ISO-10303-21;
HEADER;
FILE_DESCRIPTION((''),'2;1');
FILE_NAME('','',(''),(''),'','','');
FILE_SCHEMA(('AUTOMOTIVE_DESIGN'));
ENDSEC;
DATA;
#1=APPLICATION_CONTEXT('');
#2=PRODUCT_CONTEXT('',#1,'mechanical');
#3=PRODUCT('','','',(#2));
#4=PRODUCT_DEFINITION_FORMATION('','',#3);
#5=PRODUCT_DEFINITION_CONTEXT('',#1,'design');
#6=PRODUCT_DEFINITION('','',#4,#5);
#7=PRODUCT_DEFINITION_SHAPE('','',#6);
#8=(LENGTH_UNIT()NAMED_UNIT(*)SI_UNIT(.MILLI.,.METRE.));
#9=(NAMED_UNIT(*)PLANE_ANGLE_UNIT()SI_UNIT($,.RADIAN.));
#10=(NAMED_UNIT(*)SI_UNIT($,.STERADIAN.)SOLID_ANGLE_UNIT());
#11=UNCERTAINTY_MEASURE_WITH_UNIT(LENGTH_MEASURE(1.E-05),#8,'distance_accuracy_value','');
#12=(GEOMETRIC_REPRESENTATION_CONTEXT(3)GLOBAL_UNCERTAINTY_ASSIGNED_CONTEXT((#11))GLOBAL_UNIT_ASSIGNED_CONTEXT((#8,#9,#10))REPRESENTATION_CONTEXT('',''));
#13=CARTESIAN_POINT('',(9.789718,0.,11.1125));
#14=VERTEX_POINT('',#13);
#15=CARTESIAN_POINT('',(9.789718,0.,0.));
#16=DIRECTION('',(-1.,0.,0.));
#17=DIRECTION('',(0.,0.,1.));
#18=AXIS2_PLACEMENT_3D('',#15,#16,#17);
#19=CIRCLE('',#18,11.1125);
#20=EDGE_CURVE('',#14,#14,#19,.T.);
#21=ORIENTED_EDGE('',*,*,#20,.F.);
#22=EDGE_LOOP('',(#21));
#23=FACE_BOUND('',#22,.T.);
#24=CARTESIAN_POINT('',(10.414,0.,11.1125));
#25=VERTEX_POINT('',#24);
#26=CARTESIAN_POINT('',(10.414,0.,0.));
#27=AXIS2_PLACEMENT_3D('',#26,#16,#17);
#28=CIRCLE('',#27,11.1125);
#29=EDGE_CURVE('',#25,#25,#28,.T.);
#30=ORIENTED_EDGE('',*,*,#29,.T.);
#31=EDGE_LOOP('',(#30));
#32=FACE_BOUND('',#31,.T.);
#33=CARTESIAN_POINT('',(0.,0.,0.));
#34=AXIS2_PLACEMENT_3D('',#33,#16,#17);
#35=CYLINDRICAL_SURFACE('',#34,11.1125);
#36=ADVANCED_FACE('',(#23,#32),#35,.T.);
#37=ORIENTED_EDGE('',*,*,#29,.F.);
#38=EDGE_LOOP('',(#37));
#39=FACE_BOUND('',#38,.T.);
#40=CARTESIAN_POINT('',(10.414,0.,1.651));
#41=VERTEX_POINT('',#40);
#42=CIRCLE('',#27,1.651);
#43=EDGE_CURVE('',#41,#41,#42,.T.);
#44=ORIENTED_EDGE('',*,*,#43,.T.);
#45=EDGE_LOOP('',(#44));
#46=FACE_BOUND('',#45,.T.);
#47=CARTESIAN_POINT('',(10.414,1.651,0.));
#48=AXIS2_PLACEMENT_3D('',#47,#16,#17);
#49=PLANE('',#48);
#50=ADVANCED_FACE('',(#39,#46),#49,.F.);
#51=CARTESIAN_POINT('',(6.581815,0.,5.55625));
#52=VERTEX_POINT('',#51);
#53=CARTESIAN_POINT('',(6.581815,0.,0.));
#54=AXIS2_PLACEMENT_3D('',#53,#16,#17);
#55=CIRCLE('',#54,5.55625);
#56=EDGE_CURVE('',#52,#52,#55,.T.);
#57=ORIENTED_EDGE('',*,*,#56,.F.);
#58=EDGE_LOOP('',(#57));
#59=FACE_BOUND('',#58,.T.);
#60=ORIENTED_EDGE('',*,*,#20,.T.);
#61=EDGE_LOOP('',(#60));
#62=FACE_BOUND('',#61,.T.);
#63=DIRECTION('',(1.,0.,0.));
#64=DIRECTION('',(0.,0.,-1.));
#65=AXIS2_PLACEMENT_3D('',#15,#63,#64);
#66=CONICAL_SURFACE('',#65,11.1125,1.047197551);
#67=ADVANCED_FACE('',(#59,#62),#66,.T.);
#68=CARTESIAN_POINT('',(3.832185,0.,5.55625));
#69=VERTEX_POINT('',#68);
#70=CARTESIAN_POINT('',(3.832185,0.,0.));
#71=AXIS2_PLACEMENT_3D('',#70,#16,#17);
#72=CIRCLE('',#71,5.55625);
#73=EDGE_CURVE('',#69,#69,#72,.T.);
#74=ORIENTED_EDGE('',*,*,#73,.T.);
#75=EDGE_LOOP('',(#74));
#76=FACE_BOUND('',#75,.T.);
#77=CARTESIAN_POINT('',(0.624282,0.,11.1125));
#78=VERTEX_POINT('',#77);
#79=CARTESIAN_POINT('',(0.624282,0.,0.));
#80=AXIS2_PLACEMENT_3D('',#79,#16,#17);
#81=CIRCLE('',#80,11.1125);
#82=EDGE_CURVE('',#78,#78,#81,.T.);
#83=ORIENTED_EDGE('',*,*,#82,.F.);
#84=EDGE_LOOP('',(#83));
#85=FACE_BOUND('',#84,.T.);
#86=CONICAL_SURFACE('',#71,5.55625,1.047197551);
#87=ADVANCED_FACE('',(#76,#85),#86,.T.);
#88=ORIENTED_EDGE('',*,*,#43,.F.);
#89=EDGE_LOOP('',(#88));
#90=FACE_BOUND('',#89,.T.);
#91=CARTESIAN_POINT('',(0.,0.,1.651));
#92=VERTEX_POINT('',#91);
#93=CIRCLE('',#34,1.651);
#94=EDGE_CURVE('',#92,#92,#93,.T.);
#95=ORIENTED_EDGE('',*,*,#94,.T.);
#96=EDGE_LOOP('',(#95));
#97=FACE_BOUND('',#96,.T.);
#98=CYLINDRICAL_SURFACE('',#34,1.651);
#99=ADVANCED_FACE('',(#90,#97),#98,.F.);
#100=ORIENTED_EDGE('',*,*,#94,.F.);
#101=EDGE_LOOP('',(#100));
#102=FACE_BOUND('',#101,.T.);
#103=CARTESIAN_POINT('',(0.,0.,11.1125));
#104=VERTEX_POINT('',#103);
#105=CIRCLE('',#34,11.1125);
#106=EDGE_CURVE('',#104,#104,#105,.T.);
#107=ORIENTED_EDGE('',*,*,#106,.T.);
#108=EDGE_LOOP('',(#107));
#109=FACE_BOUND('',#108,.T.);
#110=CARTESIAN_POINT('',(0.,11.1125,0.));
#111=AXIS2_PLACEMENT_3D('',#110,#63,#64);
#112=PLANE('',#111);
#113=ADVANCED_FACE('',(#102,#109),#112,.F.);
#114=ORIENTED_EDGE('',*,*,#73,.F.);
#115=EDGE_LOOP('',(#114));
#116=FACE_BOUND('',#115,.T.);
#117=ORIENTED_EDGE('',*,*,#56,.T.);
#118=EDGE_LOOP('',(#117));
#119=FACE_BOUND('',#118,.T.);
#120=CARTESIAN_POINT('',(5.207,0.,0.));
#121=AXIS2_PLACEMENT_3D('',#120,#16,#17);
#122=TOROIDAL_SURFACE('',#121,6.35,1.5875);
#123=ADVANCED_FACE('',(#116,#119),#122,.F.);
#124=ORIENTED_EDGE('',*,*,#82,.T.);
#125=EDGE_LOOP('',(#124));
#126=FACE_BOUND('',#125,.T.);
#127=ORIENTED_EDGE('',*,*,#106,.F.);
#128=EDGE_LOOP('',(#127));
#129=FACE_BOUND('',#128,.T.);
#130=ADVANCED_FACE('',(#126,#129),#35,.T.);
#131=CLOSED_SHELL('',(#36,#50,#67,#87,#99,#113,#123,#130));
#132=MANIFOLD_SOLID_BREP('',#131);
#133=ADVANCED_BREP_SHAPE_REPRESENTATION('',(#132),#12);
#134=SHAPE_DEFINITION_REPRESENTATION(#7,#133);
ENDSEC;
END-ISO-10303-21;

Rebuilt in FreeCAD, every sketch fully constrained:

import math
import FreeCAD as App
import Part
import Sketcher

V = App.Vector
Q = App.Units.Quantity

doc = App.newDocument("Part")
body = doc.addObject("PartDesign::Body", "Body")

sketch1 = doc.addObject("Sketcher::SketchObject", "Sketch")
body.addObject(sketch1)
sketch1.AttachmentSupport = (doc.XY_Plane, [""])
sketch1.MapMode = "FlatFace"
sketch1.addGeometry(Part.LineSegment(V(0, 1.651, 0), V(10.414, 1.651, 0)), False)
sketch1.addGeometry(Part.LineSegment(V(10.414, 1.651, 0), V(10.414, 11.1125, 0)), False)
sketch1.addGeometry(Part.LineSegment(V(10.414, 11.1125, 0), V(9.789718, 11.1125, 0)), False)
sketch1.addGeometry(Part.LineSegment(V(9.789718, 11.1125, 0), V(6.581815, 5.55625, 0)), False)
sketch1.addGeometry(Part.ArcOfCircle(Part.Circle(V(5.207, 6.35, 0), V(0, 0, 1), 1.5875), math.radians(-150), math.radians(-30)), False)
sketch1.addGeometry(Part.LineSegment(V(3.832185, 5.55625, 0), V(0.624282, 11.1125, 0)), False)
sketch1.addGeometry(Part.LineSegment(V(0.624282, 11.1125, 0), V(0, 11.1125, 0)), False)
sketch1.addGeometry(Part.LineSegment(V(0, 11.1125, 0), V(0, 1.651, 0)), False)
sketch1.addConstraint(Sketcher.Constraint("Coincident", 0, 2, 1, 1))
sketch1.addConstraint(Sketcher.Constraint("Coincident", 1, 2, 2, 1))
sketch1.addConstraint(Sketcher.Constraint("Coincident", 2, 2, 3, 1))
sketch1.addConstraint(Sketcher.Constraint("Tangent", 3, 2, 4, 2))
sketch1.addConstraint(Sketcher.Constraint("Tangent", 4, 1, 5, 1))
sketch1.addConstraint(Sketcher.Constraint("Coincident", 5, 2, 6, 1))
sketch1.addConstraint(Sketcher.Constraint("Coincident", 6, 2, 7, 1))
sketch1.addConstraint(Sketcher.Constraint("Coincident", 7, 2, 0, 1))
sketch1.addConstraint(Sketcher.Constraint("Horizontal", 0))
sketch1.addConstraint(Sketcher.Constraint("Vertical", 1))
sketch1.addConstraint(Sketcher.Constraint("Horizontal", 2))
sketch1.addConstraint(Sketcher.Constraint("Horizontal", 6))
sketch1.addConstraint(Sketcher.Constraint("Vertical", 7))
sketch1.addConstraint(Sketcher.Constraint("PointOnObject", 6, 2, -2))
sketch1.addConstraint(Sketcher.Constraint("Horizontal", 3, 2, 4, 1))
sketch1.addConstraint(Sketcher.Constraint("Horizontal", 2, 2, 5, 2))
sketch1.addConstraint(Sketcher.Constraint("Equal", 2, 6))
sketch1.addConstraint(Sketcher.Constraint("Angle", 3, Q("-120 deg")))
sketch1.addConstraint(Sketcher.Constraint("Radius", 4, Q("0.0625 in")))
sketch1.addConstraint(Sketcher.Constraint("DistanceX", 0, 1, 0, 2, Q("0.41 in")))
sketch1.addConstraint(Sketcher.Constraint("DistanceY", -1, 1, 4, 3, Q("0.25 in")))
sketch1.addConstraint(Sketcher.Constraint("DistanceY", 1, 1, 1, 2, Q("0.3725 in")))
sketch1.addConstraint(Sketcher.Constraint("DistanceY", -1, 1, 0, 2, Q("0.065 in")))
revolution = doc.addObject("PartDesign::Revolution", "Revolution")
body.addObject(revolution)
revolution.Profile = sketch1
revolution.ReferenceAxis = (sketch1, ["H_Axis"])
revolution.Angle = 360

doc.recompute()
